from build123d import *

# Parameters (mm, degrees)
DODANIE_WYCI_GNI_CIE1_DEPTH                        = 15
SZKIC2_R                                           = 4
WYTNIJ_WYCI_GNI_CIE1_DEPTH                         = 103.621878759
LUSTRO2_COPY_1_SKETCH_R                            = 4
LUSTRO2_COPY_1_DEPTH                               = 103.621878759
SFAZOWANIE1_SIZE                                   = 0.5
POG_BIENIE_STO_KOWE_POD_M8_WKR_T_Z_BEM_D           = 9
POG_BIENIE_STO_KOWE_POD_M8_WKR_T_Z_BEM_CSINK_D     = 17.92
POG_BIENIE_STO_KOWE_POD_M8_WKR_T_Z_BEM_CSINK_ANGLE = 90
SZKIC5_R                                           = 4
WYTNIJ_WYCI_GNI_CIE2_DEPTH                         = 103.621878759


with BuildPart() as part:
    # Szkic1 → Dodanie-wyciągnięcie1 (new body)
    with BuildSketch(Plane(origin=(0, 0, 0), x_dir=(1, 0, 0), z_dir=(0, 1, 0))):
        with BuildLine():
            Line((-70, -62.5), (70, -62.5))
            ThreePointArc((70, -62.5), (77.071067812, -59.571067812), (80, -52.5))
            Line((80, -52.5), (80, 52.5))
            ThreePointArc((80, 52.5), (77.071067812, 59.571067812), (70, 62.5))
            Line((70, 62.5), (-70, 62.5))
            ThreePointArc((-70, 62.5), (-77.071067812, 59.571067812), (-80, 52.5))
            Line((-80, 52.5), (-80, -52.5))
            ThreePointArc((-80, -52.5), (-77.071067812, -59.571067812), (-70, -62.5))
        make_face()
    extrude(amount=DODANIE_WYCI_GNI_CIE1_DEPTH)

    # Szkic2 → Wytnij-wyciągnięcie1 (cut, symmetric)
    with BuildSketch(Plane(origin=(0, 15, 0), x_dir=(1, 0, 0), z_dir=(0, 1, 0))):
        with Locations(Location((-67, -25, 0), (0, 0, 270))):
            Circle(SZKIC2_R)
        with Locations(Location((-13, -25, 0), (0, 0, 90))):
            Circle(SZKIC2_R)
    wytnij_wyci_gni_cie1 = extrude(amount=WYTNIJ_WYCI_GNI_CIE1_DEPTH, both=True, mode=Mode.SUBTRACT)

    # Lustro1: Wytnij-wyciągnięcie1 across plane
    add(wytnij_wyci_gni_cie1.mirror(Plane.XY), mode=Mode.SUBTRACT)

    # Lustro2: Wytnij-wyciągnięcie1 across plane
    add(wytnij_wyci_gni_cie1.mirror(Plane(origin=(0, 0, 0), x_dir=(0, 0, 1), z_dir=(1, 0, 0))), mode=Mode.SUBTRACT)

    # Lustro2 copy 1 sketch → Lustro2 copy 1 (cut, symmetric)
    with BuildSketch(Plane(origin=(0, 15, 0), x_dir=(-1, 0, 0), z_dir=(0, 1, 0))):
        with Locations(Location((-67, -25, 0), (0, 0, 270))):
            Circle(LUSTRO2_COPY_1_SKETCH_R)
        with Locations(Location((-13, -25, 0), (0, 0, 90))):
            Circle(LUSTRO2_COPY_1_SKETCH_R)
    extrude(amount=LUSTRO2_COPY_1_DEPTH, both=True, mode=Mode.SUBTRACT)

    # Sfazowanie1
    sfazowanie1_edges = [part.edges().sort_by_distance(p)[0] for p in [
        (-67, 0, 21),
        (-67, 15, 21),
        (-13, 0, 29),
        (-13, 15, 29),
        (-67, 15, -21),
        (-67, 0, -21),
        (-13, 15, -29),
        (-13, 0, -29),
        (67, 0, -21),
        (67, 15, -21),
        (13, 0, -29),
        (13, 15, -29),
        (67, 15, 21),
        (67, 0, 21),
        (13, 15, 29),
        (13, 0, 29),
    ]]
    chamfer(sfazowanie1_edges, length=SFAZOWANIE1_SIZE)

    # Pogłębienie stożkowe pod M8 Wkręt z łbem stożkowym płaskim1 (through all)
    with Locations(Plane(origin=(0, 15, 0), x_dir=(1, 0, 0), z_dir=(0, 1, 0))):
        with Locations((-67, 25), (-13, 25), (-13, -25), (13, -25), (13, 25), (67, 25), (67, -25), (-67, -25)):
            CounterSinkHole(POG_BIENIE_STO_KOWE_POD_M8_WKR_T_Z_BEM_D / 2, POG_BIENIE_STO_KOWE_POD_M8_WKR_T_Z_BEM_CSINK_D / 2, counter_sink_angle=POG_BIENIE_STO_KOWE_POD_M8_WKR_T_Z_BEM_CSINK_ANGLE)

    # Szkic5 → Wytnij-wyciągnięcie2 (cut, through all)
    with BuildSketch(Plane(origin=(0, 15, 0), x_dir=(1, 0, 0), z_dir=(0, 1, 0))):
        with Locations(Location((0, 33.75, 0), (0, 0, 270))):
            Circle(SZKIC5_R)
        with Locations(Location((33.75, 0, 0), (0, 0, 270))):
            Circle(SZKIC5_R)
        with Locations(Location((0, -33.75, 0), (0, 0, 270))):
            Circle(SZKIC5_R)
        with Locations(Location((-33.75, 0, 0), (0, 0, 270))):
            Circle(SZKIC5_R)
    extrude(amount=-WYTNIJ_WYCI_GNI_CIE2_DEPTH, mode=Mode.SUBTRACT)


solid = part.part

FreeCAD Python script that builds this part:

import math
import FreeCAD as App
import Part
import Sketcher
from FreeCAD import Vector


def edges_at(feature, points):
    """Names of the edges that pass closest to the given points."""
    edges = feature.Shape.Edges
    near = lambda p: min(range(len(edges)), key=lambda i: edges[i].distToShape(Part.Vertex(*p))[0])
    return sorted({f"Edge{near(p) + 1}" for p in points})

doc = App.newDocument("Part")
body = doc.addObject("PartDesign::Body", "Body")

sketch1 = doc.addObject("Sketcher::SketchObject", "Sketch")
body.addObject(sketch1)
sketch1.AttachmentSupport = (doc.XZ_Plane, [""])
sketch1.MapMode = "FlatFace"
sketch1.addGeometry(Part.LineSegment(Vector(-70, 62.5, 0), Vector(70, 62.5, 0)), False)
sketch1.addGeometry(Part.ArcOfCircle(Part.Circle(Vector(70, 52.5, 0), Vector(0, 0, 1), 10), math.radians(0), math.radians(90)), False)
sketch1.addGeometry(Part.LineSegment(Vector(80, 52.5, 0), Vector(80, -52.5, 0)), False)
sketch1.addGeometry(Part.ArcOfCircle(Part.Circle(Vector(70, -52.5, 0), Vector(0, 0, 1), 10), math.radians(-90), math.radians(0)), False)
sketch1.addGeometry(Part.LineSegment(Vector(70, -62.5, 0), Vector(-70, -62.5, 0)), False)
sketch1.addGeometry(Part.ArcOfCircle(Part.Circle(Vector(-70, -52.5, 0), Vector(0, 0, 1), 10), math.radians(180), math.radians(270)), False)
sketch1.addGeometry(Part.LineSegment(Vector(-80, -52.5, 0), Vector(-80, 52.5, 0)), False)
sketch1.addGeometry(Part.ArcOfCircle(Part.Circle(Vector(-70, 52.5, 0), Vector(0, 0, 1), 10), math.radians(90), math.radians(180)), False)
sketch1.addConstraint(Sketcher.Constraint("Tangent", 0, 2, 1, 2))
sketch1.addConstraint(Sketcher.Constraint("Tangent", 1, 1, 2, 1))
sketch1.addConstraint(Sketcher.Constraint("Tangent", 2, 2, 3, 2))
sketch1.addConstraint(Sketcher.Constraint("Tangent", 3, 1, 4, 1))
sketch1.addConstraint(Sketcher.Constraint("Tangent", 4, 2, 5, 2))
sketch1.addConstraint(Sketcher.Constraint("Tangent", 5, 1, 6, 1))
sketch1.addConstraint(Sketcher.Constraint("Tangent", 6, 2, 7, 2))
sketch1.addConstraint(Sketcher.Constraint("Tangent", 7, 1, 0, 1))
sketch1.addConstraint(Sketcher.Constraint("Horizontal", 0))
sketch1.addConstraint(Sketcher.Constraint("Vertical", 2))
sketch1.addConstraint(Sketcher.Constraint("Horizontal", 4))
sketch1.addConstraint(Sketcher.Constraint("Vertical", 6))
sketch1.addConstraint(Sketcher.Constraint("Equal", 1, 3))
sketch1.addConstraint(Sketcher.Constraint("Equal", 3, 5))
sketch1.addConstraint(Sketcher.Constraint("Equal", 5, 7))
sketch1.addConstraint(Sketcher.Constraint("Symmetric", 1, 3, 5, 3, -1, 1))
sketch1.addConstraint(Sketcher.Constraint("Radius", 1, 10.0))
sketch1.addConstraint(Sketcher.Constraint("DistanceX", 0, 1, 0, 2, 140.0))
sketch1.addConstraint(Sketcher.Constraint("DistanceY", 2, 2, 2, 1, 105.0))
pad1 = doc.addObject("PartDesign::Pad", "Pad")
body.addObject(pad1)
pad1.Profile = sketch1
pad1.Length = 15
pad1.Reversed = True

sketch2 = doc.addObject("Sketcher::SketchObject", "Sketch001")
body.addObject(sketch2)
sketch2.AttachmentSupport = (doc.XZ_Plane, [""])
sketch2.MapMode = "FlatFace"
sketch2.AttachmentOffset = App.Placement(Vector(0, 0, -15), App.Rotation())
sketch2.addGeometry(Part.Circle(Vector(-67, 25, 0), Vector(0, 0, 1), 4), False)
sketch2.addGeometry(Part.Circle(Vector(-13, 25, 0), Vector(0, 0, 1), 4), False)
sketch2.addConstraint(Sketcher.Constraint("Equal", 0, 1))
sketch2.addConstraint(Sketcher.Constraint("Horizontal", 0, 3, 1, 3))
sketch2.addConstraint(Sketcher.Constraint("Diameter", 0, 8.0))
sketch2.addConstraint(Sketcher.Constraint("DistanceX", 0, 3, -1, 1, 67.0))
sketch2.addConstraint(Sketcher.Constraint("DistanceY", -1, 1, 0, 3, 25.0))
sketch2.addConstraint(Sketcher.Constraint("DistanceX", 1, 3, -1, 1, 13.0))
pocket1 = doc.addObject("PartDesign::Pocket", "Pocket")
body.addObject(pocket1)
pocket1.Profile = sketch2
pocket1.Length = 207.243758
pocket1.Midplane = True
doc.recompute()

mirrored = doc.addObject("PartDesign::Mirrored", "Mirrored")
body.addObject(mirrored)
mirrored.Originals = [pocket1]
mirrored.MirrorPlane = (doc.XY_Plane, [""])
body.Tip = mirrored
doc.recompute()

mirrored2 = doc.addObject("PartDesign::Mirrored", "Mirrored001")
body.addObject(mirrored2)
mirrored2.Originals = [pocket1]
mirrored2.MirrorPlane = (doc.YZ_Plane, [""])
body.Tip = mirrored2

sketch3 = doc.addObject("Sketcher::SketchObject", "Sketch002")
body.addObject(sketch3)
sketch3.AttachmentSupport = (doc.XZ_Plane, [""])
sketch3.MapMode = "FlatFace"
sketch3.AttachmentOffset = App.Placement(Vector(0, 0, -15), App.Rotation())
sketch3.addGeometry(Part.Circle(Vector(67, -25, 0), Vector(0, 0, 1), 4), False)
sketch3.addGeometry(Part.Circle(Vector(13, -25, 0), Vector(0, 0, 1), 4), False)
sketch3.addConstraint(Sketcher.Constraint("Equal", 0, 1))
sketch3.addConstraint(Sketcher.Constraint("Horizontal", 0, 3, 1, 3))
sketch3.addConstraint(Sketcher.Constraint("Diameter", 0, 8.0))
sketch3.addConstraint(Sketcher.Constraint("DistanceX", -1, 1, 0, 3, 67.0))
sketch3.addConstraint(Sketcher.Constraint("DistanceY", 0, 3, -1, 1, 25.0))
sketch3.addConstraint(Sketcher.Constraint("DistanceX", -1, 1, 1, 3, 13.0))
pocket2 = doc.addObject("PartDesign::Pocket", "Pocket001")
body.addObject(pocket2)
pocket2.Profile = sketch3
pocket2.Length = 207.243758
pocket2.Midplane = True
doc.recompute()

chamfer = doc.addObject("PartDesign::Chamfer", "Chamfer")
body.addObject(chamfer)
chamfer.Base = (pocket2, edges_at(pocket2, [
    (-67, 0, 21),
    (-67, 15, 21),
    (-13, 0, 29),
    (-13, 15, 29),
    (-67, 15, -21),
    (-67, 0, -21),
    (-13, 15, -29),
    (-13, 0, -29),
    (67, 0, -21),
    (67, 15, -21),
    (13, 0, -29),
    (13, 15, -29),
    (67, 15, 21),
    (67, 0, 21),
    (13, 15, 29),
    (13, 0, 29),
]))
chamfer.Size = 0.5

sketch4 = doc.addObject("Sketcher::SketchObject", "Sketch003")
body.addObject(sketch4)
sketch4.AttachmentSupport = (doc.XZ_Plane, [""])
sketch4.MapMode = "FlatFace"
sketch4.AttachmentOffset = App.Placement(Vector(0, 0, -15), App.Rotation())
sketch4.addGeometry(Part.Circle(Vector(-67, -25, 0), Vector(0, 0, 1), 4.5), False)
sketch4.addGeometry(Part.Circle(Vector(-13, -25, 0), Vector(0, 0, 1), 4.5), False)
sketch4.addGeometry(Part.Circle(Vector(-13, 25, 0), Vector(0, 0, 1), 4.5), False)
sketch4.addGeometry(Part.Circle(Vector(13, 25, 0), Vector(0, 0, 1), 4.5), False)
sketch4.addGeometry(Part.Circle(Vector(13, -25, 0), Vector(0, 0, 1), 4.5), False)
sketch4.addGeometry(Part.Circle(Vector(67, -25, 0), Vector(0, 0, 1), 4.5), False)
sketch4.addGeometry(Part.Circle(Vector(67, 25, 0), Vector(0, 0, 1), 4.5), False)
sketch4.addGeometry(Part.Circle(Vector(-67, 25, 0), Vector(0, 0, 1), 4.5), False)
sketch4.addConstraint(Sketcher.Constraint("Equal", 0, 1))
sketch4.addConstraint(Sketcher.Constraint("Equal", 1, 2))
sketch4.addConstraint(Sketcher.Constraint("Equal", 2, 3))
sketch4.addConstraint(Sketcher.Constraint("Equal", 3, 4))
sketch4.addConstraint(Sketcher.Constraint("Equal", 4, 5))
sketch4.addConstraint(Sketcher.Constraint("Equal", 5, 6))
sketch4.addConstraint(Sketcher.Constraint("Equal", 6, 7))
sketch4.addConstraint(Sketcher.Constraint("Symmetric", 1, 3, 3, 3, -1, 1))
sketch4.addConstraint(Sketcher.Constraint("Symmetric", 2, 3, 4, 3, -1, 1))
sketch4.addConstraint(Sketcher.Constraint("Symmetric", 0, 3, 6, 3, -1, 1))
sketch4.addConstraint(Sketcher.Constraint("Symmetric", 5, 3, 7, 3, -1, 1))
sketch4.addConstraint(Sketcher.Constraint("Symmetric", 2, 3, 3, 3, -2))
sketch4.addConstraint(Sketcher.Constraint("Symmetric", 0, 3, 5, 3, -2))
sketch4.addConstraint(Sketcher.Constraint("Horizontal", 0, 3, 1, 3))
sketch4.addConstraint(Sketcher.Constraint("Diameter", 0, 9.0))
sketch4.addConstraint(Sketcher.Constraint("DistanceX", 0, 3, -1, 1, 67.0))
sketch4.addConstraint(Sketcher.Constraint("DistanceY", 0, 3, -1, 1, 25.0))
sketch4.addConstraint(Sketcher.Constraint("DistanceX", 1, 3, -1, 1, 13.0))
doc.recompute()
hole = doc.addObject("PartDesign::Hole", "Hole")
body.addObject(hole)
hole.Profile = sketch4
hole.ThreadType = "None"
hole.Diameter = 9
hole.DepthType = "ThroughAll"
hole.HoleCutType = "Countersink"
hole.HoleCutDiameter = 17.92
hole.HoleCutCountersinkAngle = 90
hole.Reversed = True

sketch5 = doc.addObject("Sketcher::SketchObject", "Sketch004")
body.addObject(sketch5)
sketch5.AttachmentSupport = (doc.XZ_Plane, [""])
sketch5.MapMode = "FlatFace"
sketch5.AttachmentOffset = App.Placement(Vector(0, 0, -15), App.Rotation())
sketch5.addGeometry(Part.Circle(Vector(0, -33.75, 0), Vector(0, 0, 1), 4), False)
sketch5.addGeometry(Part.Circle(Vector(33.75, 0, 0), Vector(0, 0, 1), 4), False)
sketch5.addGeometry(Part.Circle(Vector(0, 33.75, 0), Vector(0, 0, 1), 4), False)
sketch5.addGeometry(Part.Circle(Vector(-33.75, 0, 0), Vector(0, 0, 1), 4), False)
sketch5.addConstraint(Sketcher.Constraint("Equal", 0, 1))
sketch5.addConstraint(Sketcher.Constraint("Equal", 1, 2))
sketch5.addConstraint(Sketcher.Constraint("Equal", 2, 3))
sketch5.addConstraint(Sketcher.Constraint("Symmetric", 0, 3, 2, 3, -1, 1))
sketch5.addConstraint(Sketcher.Constraint("Symmetric", 1, 3, 3, 3, -1, 1))
sketch5.addConstraint(Sketcher.Constraint("PointOnObject", 0, 3, -2))
sketch5.addConstraint(Sketcher.Constraint("PointOnObject", 1, 3, -1))
sketch5.addConstraint(Sketcher.Constraint("Diameter", 0, 8.0))
sketch5.addConstraint(Sketcher.Constraint("DistanceY", 0, 3, 2, 3, 67.5))
sketch5.addConstraint(Sketcher.Constraint("DistanceX", 3, 3, 1, 3, 67.5))
pocket3 = doc.addObject("PartDesign::Pocket", "Pocket002")
body.addObject(pocket3)
pocket3.Profile = sketch5
pocket3.Type = "ThroughAll"
pocket3.Reversed = True

doc.recompute()
